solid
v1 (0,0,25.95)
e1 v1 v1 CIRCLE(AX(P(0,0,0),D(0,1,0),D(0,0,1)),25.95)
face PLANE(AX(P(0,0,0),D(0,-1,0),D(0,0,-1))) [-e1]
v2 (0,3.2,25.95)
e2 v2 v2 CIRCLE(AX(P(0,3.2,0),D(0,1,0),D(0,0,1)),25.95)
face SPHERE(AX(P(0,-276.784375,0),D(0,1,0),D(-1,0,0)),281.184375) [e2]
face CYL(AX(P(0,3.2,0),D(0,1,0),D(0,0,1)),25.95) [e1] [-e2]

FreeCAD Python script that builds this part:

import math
import FreeCAD as App
import Part
import Sketcher
from FreeCAD import Vector

doc = App.newDocument("Part")
body = doc.addObject("PartDesign::Body", "Body")

# Sketch on XY plane
sketch1 = body.newObject("Sketcher::SketchObject", "Sketch")
sketch1.AttachmentSupport = (doc.getObject("XY_Plane"), [""])
sketch1.MapMode = "FlatFace"
sketch1.addGeometry([
    Part.LineSegment(Vector(-25.9, 0, 0), Vector(0, 0, 0)),
    Part.LineSegment(Vector(0, 0, 0), Vector(0, 4.4, 0)),
    Part.ArcOfCircle(Part.Circle(Vector(0, -276.8, 0), Vector(0, 0, 1), 281.2), math.radians(90), math.radians(95.3)),
    Part.LineSegment(Vector(-25.9, 3.2, 0), Vector(-25.9, 0, 0)),
], False)
sketch1.addConstraint([
    Sketcher.Constraint("Coincident", 0, 2, 1, 1),
    Sketcher.Constraint("Coincident", 1, 2, 2, 1),
    Sketcher.Constraint("Coincident", 2, 2, 3, 1),
    Sketcher.Constraint("Coincident", 3, 2, 0, 1),
    Sketcher.Constraint("Horizontal", 0),
    Sketcher.Constraint("Vertical", 1),
    Sketcher.Constraint("Vertical", 3),
    Sketcher.Constraint("Coincident", 0, 2, -1, 1),
    Sketcher.Constraint("PointOnObject", 2, 3, -2),
    Sketcher.Constraint("DistanceY", 1, 1, 1, 2, 4.4),
    Sketcher.Constraint("DistanceY", 3, 2, 3, 1, 3.2),
    Sketcher.Constraint("DistanceX", 0, 1, 0, 2, 25.95),
])
revolution = body.newObject("PartDesign::Revolution", "Revolution")
revolution.Profile = sketch1
revolution.ReferenceAxis = (sketch1, ["V_Axis"])
revolution.Angle = 360

doc.recompute()
